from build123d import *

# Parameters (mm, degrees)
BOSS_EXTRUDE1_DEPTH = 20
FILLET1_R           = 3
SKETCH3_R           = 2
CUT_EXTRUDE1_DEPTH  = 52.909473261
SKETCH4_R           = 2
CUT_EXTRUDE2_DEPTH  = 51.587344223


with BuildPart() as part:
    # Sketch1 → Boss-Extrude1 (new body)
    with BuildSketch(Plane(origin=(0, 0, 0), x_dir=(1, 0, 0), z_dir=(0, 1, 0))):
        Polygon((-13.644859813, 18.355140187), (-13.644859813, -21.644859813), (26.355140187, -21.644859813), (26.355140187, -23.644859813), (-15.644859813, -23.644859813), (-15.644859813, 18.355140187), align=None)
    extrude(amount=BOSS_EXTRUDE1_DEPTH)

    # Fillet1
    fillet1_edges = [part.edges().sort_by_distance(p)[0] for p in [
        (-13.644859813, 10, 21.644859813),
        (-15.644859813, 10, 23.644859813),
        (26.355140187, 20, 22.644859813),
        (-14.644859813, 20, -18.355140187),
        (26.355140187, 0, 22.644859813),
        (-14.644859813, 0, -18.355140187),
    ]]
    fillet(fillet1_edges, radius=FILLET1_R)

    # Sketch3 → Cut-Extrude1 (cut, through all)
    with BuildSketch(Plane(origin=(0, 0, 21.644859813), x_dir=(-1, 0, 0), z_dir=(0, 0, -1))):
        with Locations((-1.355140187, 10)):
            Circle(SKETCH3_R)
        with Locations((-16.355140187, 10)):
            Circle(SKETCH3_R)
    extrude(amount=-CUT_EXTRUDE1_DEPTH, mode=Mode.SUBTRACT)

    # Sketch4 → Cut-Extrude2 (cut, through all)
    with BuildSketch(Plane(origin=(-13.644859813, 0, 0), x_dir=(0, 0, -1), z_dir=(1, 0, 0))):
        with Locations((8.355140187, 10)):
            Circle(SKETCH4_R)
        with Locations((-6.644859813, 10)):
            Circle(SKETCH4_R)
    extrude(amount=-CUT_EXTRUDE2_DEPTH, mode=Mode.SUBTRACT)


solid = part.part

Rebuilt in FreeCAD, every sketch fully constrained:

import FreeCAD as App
import Part
import Sketcher


def edges_at(feature, points):
    """Names of the edges that pass closest to the given points."""
    edges = feature.Shape.Edges
    near = lambda p: min(range(len(edges)), key=lambda i: edges[i].distToShape(Part.Vertex(*p))[0])
    return sorted({f"Edge{near(p) + 1}" for p in points})

doc = App.newDocument("Part")
params = doc.addObject("Spreadsheet::Sheet", "Params")
for row, (alias, value) in enumerate([
    ("sketch1_width", "2 mm"),
    ("sketch1_width2", "42 mm"),
    ("pad1_length", "20 mm"),
    ("fillet_radius", "3 mm"),
    ("sketch2_diameter", "4 mm"),
    ("sketch3_diameter", "4 mm"),
], start=1):
    params.set(f"A{row}", alias)
    params.set(f"B{row}", "=" + value)
    params.setAlias(f"B{row}", alias)

body = doc.addObject("PartDesign::Body", "Body")

# Sketch on XZ plane
sketch1 = body.newObject("Sketcher::SketchObject", "Sketch")
sketch1.AttachmentSupport = (doc.getObject("XZ_Plane"), [""])
sketch1.MapMode = "FlatFace"
sketch1.addGeometry([
    Part.LineSegment(App.Vector(-13.64486, 21.64486, 0), App.Vector(-13.64486, -18.35514, 0)),  # 0
    Part.LineSegment(App.Vector(-13.64486, -18.35514, 0), App.Vector(-15.64486, -18.35514, 0)),  # 1
    Part.LineSegment(App.Vector(-15.64486, -18.35514, 0), App.Vector(-15.64486, 23.64486, 0)),  # 2
    Part.LineSegment(App.Vector(-15.64486, 23.64486, 0), App.Vector(26.35514, 23.64486, 0)),  # 3
    Part.LineSegment(App.Vector(26.35514, 23.64486, 0), App.Vector(26.35514, 21.64486, 0)),  # 4
    Part.LineSegment(App.Vector(26.35514, 21.64486, 0), App.Vector(-13.64486, 21.64486, 0)),  # 5
], False)
sketch1.addConstraint([
    Sketcher.Constraint("Coincident", 0, 2, 1, 1),
    Sketcher.Constraint("Coincident", 1, 2, 2, 1),
    Sketcher.Constraint("Coincident", 2, 2, 3, 1),
    Sketcher.Constraint("Coincident", 3, 2, 4, 1),
    Sketcher.Constraint("Coincident", 4, 2, 5, 1),
    Sketcher.Constraint("Coincident", 5, 2, 0, 1),
    Sketcher.Constraint("Vertical", 0),
    Sketcher.Constraint("Horizontal", 1),
    Sketcher.Constraint("Vertical", 2),
    Sketcher.Constraint("Horizontal", 3),
    Sketcher.Constraint("Vertical", 4),
    Sketcher.Constraint("Horizontal", 5),
    Sketcher.Constraint("Equal", 5, 0),
    Sketcher.Constraint("Equal", 3, 2),
    Sketcher.Constraint("DistanceX", 1, 2, 1, 1, 2.0),
    Sketcher.Constraint("DistanceX", 3, 1, 3, 2, 42.0),
    Sketcher.Constraint("DistanceX", 0, 2, -1, 1, 13.64486),
    Sketcher.Constraint("DistanceY", 0, 2, -1, 1, 18.35514),
])
sketch1.setExpression("Constraints[14]", "Params.sketch1_width")
sketch1.setExpression("Constraints[15]", "Params.sketch1_width2")
pad1 = body.newObject("PartDesign::Pad", "Pad")
pad1.Profile = sketch1
pad1.setExpression("Length", "Params.pad1_length")
pad1.Reversed = True
doc.recompute()

fillet = body.newObject("PartDesign::Fillet", "Fillet")
fillet.Base = (pad1, edges_at(pad1, [
    (-13.645, 10, 21.645),
    (-15.645, 10, 23.645),
    (26.355, 20, 22.645),
    (-14.645, 20, -18.355),
    (26.355, 0, 22.645),
    (-14.645, 0, -18.355),
]))
fillet.setExpression("Radius", "Params.fillet_radius")

# Sketch on XY plane
sketch2 = body.newObject("Sketcher::SketchObject", "Sketch001")
sketch2.AttachmentSupport = (doc.getObject("XY_Plane"), [""])
sketch2.MapMode = "FlatFace"
sketch2.AttachmentOffset = App.Placement(App.Vector(0, 0, 21.64486), App.Rotation())
sketch2.addGeometry([
    Part.Circle(App.Vector(1.35514, 10, 0), App.Vector(0, 0, 1), 2),
    Part.Circle(App.Vector(16.35514, 10, 0), App.Vector(0, 0, 1), 2),
], False)
sketch2.addConstraint([
    Sketcher.Constraint("Equal", 0, 1),
    Sketcher.Constraint("Horizontal", 0, 3, 1, 3),
    Sketcher.Constraint("Diameter", 0, 4.0),
    Sketcher.Constraint("DistanceY", -1, 1, 0, 3, 10.0),
    Sketcher.Constraint("DistanceX", 0, 3, 1, 3, 15.0),
    Sketcher.Constraint("DistanceX", -1, 1, 0, 3, 1.35514),
])
sketch2.setExpression("Constraints[2]", "Params.sketch2_diameter")
pocket1 = body.newObject("PartDesign::Pocket", "Pocket")
pocket1.Profile = sketch2
pocket1.Type = "ThroughAll"
pocket1.Reversed = True

# Sketch on YZ plane
sketch3 = body.newObject("Sketcher::SketchObject", "Sketch002")
sketch3.AttachmentSupport = (doc.getObject("YZ_Plane"), [""])
sketch3.MapMode = "FlatFace"
sketch3.AttachmentOffset = App.Placement(App.Vector(0, 0, -13.64486), App.Rotation())
sketch3.addGeometry([
    Part.Circle(App.Vector(10, -8.35514, 0), App.Vector(0, 0, 1), 2),
    Part.Circle(App.Vector(10, 6.64486, 0), App.Vector(0, 0, 1), 2),
], False)
sketch3.addConstraint([
    Sketcher.Constraint("Equal", 0, 1),
    Sketcher.Constraint("Vertical", 0, 3, 1, 3),
    Sketcher.Constraint("Diameter", 0, 4.0),
    Sketcher.Constraint("DistanceX", -1, 1, 0, 3, 10.0),
    Sketcher.Constraint("DistanceY", 0, 3, 1, 3, 15.0),
    Sketcher.Constraint("DistanceY", 0, 3, -1, 1, 8.35514),
])
sketch3.setExpression("Constraints[2]", "Params.sketch3_diameter")
pocket2 = body.newObject("PartDesign::Pocket", "Pocket001")
pocket2.Profile = sketch3
pocket2.Type = "ThroughAll"

doc.recompute()
